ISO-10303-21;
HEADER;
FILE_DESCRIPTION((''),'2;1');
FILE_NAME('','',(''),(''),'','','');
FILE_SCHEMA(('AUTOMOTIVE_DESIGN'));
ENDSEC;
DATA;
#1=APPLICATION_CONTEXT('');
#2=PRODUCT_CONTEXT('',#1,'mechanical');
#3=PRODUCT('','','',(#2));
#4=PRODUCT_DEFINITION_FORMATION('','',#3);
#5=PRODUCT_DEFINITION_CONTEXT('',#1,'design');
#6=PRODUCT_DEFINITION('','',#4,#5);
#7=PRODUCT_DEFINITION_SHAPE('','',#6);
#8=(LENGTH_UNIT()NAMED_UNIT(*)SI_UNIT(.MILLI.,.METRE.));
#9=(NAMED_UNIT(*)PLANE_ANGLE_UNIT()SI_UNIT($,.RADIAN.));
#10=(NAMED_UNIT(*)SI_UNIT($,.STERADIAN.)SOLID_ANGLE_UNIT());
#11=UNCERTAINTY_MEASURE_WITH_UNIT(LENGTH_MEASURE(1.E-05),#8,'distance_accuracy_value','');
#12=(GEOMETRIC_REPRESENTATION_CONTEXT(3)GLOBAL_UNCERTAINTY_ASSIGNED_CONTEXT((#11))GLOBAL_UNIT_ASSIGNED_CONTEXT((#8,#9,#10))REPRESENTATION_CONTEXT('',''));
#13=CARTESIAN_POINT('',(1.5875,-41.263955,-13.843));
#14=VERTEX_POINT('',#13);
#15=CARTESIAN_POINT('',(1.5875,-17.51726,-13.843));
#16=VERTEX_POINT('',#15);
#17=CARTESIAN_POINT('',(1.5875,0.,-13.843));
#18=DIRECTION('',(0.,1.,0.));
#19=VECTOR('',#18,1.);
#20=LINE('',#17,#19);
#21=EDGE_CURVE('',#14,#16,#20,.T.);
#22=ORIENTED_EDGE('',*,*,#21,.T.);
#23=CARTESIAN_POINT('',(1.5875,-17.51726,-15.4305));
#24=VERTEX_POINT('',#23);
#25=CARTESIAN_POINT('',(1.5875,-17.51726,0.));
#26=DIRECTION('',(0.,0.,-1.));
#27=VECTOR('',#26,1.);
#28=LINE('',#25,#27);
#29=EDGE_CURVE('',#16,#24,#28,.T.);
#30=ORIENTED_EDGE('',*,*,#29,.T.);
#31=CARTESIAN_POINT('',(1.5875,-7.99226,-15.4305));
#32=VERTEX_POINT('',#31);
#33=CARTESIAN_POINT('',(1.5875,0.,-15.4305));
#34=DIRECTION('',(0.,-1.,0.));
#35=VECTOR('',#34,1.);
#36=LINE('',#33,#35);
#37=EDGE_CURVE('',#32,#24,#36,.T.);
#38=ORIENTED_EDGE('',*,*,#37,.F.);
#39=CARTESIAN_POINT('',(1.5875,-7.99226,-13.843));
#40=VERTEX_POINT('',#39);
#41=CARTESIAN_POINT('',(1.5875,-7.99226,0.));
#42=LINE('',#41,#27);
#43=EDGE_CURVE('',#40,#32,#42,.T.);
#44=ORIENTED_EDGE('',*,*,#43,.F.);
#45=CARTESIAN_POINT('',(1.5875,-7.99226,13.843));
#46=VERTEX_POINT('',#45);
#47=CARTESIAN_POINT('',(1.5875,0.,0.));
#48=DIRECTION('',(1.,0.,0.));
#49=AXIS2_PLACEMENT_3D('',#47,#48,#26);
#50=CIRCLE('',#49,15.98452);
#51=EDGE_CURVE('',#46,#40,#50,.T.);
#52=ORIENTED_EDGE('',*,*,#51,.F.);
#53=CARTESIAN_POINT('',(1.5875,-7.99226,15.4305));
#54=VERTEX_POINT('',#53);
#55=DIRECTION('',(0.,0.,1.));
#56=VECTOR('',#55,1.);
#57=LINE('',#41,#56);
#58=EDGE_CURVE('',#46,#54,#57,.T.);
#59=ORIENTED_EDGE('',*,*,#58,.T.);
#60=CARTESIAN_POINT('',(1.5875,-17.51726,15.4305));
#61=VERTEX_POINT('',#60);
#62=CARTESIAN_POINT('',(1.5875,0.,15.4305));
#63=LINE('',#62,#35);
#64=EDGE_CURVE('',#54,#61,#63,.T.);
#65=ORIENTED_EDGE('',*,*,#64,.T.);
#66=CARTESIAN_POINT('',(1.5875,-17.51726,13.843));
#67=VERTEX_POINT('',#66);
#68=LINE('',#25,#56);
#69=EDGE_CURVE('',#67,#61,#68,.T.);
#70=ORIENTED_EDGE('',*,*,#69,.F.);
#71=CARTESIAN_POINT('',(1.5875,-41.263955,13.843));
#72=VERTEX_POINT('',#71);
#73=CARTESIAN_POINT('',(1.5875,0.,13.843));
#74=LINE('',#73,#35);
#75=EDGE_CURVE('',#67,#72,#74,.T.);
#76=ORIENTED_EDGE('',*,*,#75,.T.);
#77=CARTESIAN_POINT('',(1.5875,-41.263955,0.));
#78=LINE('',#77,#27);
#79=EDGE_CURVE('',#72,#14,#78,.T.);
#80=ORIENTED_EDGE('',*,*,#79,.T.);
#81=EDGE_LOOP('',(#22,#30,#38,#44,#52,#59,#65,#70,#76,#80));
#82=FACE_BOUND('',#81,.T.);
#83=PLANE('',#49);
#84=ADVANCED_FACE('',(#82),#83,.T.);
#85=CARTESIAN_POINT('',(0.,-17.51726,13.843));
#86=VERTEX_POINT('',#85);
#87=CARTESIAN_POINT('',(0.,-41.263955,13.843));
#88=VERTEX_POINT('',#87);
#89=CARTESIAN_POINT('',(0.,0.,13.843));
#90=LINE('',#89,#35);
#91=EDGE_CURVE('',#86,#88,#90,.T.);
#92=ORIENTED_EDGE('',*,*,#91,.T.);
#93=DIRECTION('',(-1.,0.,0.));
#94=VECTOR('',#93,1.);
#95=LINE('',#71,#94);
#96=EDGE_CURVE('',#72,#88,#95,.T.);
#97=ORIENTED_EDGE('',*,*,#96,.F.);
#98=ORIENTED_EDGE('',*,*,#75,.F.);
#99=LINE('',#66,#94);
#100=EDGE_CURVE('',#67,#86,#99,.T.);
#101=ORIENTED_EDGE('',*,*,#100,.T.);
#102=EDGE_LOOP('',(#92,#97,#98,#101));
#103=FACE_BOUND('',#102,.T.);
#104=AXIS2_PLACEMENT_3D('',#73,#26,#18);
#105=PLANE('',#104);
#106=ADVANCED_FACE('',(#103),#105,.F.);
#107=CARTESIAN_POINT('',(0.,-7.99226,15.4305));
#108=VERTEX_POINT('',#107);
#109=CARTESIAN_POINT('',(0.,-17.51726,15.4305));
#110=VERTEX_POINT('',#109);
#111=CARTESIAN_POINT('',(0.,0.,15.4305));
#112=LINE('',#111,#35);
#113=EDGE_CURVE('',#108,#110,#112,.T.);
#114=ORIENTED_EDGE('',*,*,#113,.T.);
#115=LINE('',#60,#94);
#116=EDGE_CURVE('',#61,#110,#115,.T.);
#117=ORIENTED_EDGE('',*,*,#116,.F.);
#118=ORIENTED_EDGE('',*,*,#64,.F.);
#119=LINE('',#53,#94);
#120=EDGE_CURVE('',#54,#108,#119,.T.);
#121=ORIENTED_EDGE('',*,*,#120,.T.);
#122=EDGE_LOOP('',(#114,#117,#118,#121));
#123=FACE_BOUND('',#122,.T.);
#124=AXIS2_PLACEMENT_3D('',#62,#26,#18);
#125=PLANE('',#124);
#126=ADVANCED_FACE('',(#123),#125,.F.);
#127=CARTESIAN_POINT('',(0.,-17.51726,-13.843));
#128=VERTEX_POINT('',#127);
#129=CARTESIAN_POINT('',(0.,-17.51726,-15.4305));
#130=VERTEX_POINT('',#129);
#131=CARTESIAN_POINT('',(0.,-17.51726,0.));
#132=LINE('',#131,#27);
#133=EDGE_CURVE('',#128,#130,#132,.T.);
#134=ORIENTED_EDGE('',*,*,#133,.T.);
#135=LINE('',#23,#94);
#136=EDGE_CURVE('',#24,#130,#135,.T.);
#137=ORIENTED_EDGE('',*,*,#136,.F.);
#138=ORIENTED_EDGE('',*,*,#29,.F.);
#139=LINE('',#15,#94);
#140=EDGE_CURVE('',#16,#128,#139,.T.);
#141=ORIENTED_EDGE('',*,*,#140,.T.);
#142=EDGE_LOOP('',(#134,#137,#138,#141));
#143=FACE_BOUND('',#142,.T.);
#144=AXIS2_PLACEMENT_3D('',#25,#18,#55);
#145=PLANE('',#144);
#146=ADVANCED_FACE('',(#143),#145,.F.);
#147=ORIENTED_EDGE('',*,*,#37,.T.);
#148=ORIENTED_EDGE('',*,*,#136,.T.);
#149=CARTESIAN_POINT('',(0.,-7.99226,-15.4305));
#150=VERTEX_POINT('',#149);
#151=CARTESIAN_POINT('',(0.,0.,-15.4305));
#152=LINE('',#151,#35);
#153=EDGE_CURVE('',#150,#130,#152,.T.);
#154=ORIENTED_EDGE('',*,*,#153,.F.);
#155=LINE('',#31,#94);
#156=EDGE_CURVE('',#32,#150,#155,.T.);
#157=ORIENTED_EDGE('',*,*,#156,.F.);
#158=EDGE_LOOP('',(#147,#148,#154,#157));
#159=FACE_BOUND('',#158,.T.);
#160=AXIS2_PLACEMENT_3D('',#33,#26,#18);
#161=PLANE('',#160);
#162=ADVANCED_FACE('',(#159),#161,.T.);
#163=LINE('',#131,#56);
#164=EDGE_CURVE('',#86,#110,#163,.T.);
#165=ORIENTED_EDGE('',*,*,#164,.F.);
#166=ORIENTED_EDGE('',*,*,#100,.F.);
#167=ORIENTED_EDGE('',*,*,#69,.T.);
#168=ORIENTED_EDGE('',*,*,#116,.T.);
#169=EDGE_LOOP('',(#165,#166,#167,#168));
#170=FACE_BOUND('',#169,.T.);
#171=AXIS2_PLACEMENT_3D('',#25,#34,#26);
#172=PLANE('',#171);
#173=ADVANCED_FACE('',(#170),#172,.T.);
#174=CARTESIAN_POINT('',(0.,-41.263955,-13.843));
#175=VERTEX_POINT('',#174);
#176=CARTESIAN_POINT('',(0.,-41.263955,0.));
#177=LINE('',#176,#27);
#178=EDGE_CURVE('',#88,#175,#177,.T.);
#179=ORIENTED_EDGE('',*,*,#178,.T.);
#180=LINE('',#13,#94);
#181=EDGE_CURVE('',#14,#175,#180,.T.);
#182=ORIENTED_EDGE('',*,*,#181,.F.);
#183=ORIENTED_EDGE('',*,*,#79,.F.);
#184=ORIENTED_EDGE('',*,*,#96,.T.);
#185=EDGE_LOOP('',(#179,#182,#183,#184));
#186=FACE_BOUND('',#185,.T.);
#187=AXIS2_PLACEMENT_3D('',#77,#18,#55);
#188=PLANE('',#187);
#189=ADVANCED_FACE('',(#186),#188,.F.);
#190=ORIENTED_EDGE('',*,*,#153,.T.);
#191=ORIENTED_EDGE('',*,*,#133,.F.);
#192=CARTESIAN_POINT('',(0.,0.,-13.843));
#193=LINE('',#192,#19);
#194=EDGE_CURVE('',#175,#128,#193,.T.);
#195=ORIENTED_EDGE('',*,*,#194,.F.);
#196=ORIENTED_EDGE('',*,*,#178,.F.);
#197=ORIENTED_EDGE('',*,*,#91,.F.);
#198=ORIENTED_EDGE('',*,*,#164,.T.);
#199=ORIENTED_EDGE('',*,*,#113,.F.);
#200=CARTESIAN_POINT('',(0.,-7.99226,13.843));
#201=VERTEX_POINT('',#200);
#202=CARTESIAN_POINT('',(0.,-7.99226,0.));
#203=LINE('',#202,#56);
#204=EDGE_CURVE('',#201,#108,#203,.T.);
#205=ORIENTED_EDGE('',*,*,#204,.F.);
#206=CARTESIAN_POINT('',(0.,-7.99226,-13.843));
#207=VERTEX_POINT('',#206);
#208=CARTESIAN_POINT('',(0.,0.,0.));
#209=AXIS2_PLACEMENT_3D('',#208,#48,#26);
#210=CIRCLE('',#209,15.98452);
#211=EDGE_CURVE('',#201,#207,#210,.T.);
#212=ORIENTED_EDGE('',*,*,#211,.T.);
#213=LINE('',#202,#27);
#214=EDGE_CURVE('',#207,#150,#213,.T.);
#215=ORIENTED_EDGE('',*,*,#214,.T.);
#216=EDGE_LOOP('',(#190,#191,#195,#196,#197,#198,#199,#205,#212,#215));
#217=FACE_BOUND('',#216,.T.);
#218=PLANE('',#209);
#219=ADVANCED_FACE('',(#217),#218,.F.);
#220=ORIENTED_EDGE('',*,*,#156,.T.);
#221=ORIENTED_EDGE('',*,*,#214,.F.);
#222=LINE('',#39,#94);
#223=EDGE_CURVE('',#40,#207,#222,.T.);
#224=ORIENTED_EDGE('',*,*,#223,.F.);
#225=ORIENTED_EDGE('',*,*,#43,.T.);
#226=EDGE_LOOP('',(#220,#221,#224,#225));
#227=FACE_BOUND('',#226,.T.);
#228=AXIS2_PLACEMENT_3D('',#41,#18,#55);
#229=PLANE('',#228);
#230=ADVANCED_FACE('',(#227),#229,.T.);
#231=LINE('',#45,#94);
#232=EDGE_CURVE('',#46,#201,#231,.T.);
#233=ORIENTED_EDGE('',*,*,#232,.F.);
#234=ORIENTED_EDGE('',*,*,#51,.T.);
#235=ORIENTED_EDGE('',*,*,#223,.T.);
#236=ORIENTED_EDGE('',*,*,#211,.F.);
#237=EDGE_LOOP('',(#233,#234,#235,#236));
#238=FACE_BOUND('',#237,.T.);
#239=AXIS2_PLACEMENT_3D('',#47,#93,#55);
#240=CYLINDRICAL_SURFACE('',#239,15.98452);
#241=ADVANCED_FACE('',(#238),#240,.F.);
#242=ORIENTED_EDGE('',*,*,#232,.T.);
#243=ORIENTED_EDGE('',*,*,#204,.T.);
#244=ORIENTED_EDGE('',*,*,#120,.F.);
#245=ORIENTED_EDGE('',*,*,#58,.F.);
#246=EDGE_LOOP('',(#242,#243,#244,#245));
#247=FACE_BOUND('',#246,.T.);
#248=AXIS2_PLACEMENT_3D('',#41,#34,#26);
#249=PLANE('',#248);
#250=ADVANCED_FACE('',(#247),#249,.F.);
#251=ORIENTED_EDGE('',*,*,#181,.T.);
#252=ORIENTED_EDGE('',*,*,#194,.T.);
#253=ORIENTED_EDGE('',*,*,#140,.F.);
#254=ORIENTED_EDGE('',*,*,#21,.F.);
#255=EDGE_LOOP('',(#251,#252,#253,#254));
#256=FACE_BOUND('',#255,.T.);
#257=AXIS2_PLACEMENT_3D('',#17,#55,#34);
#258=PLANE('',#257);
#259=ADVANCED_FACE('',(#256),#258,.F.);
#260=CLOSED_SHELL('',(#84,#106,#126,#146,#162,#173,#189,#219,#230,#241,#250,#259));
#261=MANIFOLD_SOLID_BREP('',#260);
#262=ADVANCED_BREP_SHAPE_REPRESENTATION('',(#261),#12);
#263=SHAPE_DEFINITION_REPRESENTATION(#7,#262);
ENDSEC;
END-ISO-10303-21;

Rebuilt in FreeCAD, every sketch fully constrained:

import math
import FreeCAD as App
import Part
import Sketcher

V = App.Vector
Q = App.Units.Quantity

doc = App.newDocument("Part")
params = doc.addObject("Spreadsheet::Sheet", "Params")
for row, (alias, value) in enumerate([
    ("sketch1_height", "1.09 in"),
    ("sketch1_width", "0.375 in"),
    ("sketch1_height2", "0.0625 in"),
    ("pad1_length", "0.0625 in"),
], start=1):
    params.set(f"A{row}", alias)
    params.set(f"B{row}", "=" + value)
    params.setAlias(f"B{row}", alias)

body = doc.addObject("PartDesign::Body", "Body")

# Sketch on YZ plane
sketch1 = body.newObject("Sketcher::SketchObject", "Sketch")
sketch1.AttachmentSupport = (doc.getObject("YZ_Plane"), [""])
sketch1.MapMode = "FlatFace"
sketch1.addGeometry(Part.ArcOfCircle(Part.Circle(V(0, 0, 0), V(0, 0, 1), 16), math.radians(120), math.radians(240)), False)
sketch1.addGeometry(Part.LineSegment(V(-8, 13.8, 0), V(-8, 15.4, 0)), False)
sketch1.addGeometry(Part.LineSegment(V(-8, 15.4, 0), V(-17.5, 15.4, 0)), False)
sketch1.addGeometry(Part.LineSegment(V(-17.5, 15.4, 0), V(-17.5, 13.8, 0)), False)
sketch1.addGeometry(Part.LineSegment(V(-17.5, 13.8, 0), V(-41.3, 13.8, 0)), False)
sketch1.addGeometry(Part.LineSegment(V(-41.3, 13.8, 0), V(-41.3, -13.8, 0)), False)
sketch1.addGeometry(Part.LineSegment(V(-41.3, -13.8, 0), V(-17.5, -13.8, 0)), False)
sketch1.addGeometry(Part.LineSegment(V(-17.5, -13.8, 0), V(-17.5, -15.4, 0)), False)
sketch1.addGeometry(Part.LineSegment(V(-17.5, -15.4, 0), V(-8, -15.4, 0)), False)
sketch1.addGeometry(Part.LineSegment(V(-8, -15.4, 0), V(-8, -13.8, 0)), False)
sketch1.addConstraint(Sketcher.Constraint("Coincident", 0, 1, 1, 1))
sketch1.addConstraint(Sketcher.Constraint("Coincident", 1, 2, 2, 1))
sketch1.addConstraint(Sketcher.Constraint("Coincident", 2, 2, 3, 1))
sketch1.addConstraint(Sketcher.Constraint("Coincident", 3, 2, 4, 1))
sketch1.addConstraint(Sketcher.Constraint("Coincident", 4, 2, 5, 1))
sketch1.addConstraint(Sketcher.Constraint("Coincident", 5, 2, 6, 1))
sketch1.addConstraint(Sketcher.Constraint("Coincident", 6, 2, 7, 1))
sketch1.addConstraint(Sketcher.Constraint("Coincident", 7, 2, 8, 1))
sketch1.addConstraint(Sketcher.Constraint("Coincident", 8, 2, 9, 1))
sketch1.addConstraint(Sketcher.Constraint("Coincident", 9, 2, 0, 2))
sketch1.addConstraint(Sketcher.Constraint("Vertical", 1))
sketch1.addConstraint(Sketcher.Constraint("Horizontal", 2))
sketch1.addConstraint(Sketcher.Constraint("Vertical", 3))
sketch1.addConstraint(Sketcher.Constraint("Horizontal", 4))
sketch1.addConstraint(Sketcher.Constraint("Vertical", 5))
sketch1.addConstraint(Sketcher.Constraint("Horizontal", 6))
sketch1.addConstraint(Sketcher.Constraint("Vertical", 7))
sketch1.addConstraint(Sketcher.Constraint("Horizontal", 8))
sketch1.addConstraint(Sketcher.Constraint("Vertical", 9))
sketch1.addConstraint(Sketcher.Constraint("Coincident", 0, 3, -1, 1))
sketch1.addConstraint(Sketcher.Constraint("Symmetric", 3, 2, 6, 2, -1))
sketch1.addConstraint(Sketcher.Constraint("Symmetric", 1, 2, 8, 2, -1))
sketch1.addConstraint(Sketcher.Constraint("Horizontal", 0, 1, 3, 2))
sketch1.addConstraint(Sketcher.Constraint("DistanceY", 5, 2, 5, 1, Q("1.09 in")))
sketch1.addConstraint(Sketcher.Constraint("DistanceX", 2, 2, 2, 1, Q("0.375 in")))
sketch1.addConstraint(Sketcher.Constraint("DistanceY", 1, 1, 1, 2, Q("0.0625 in")))
sketch1.addConstraint(Sketcher.Constraint("Radius", 0, 15.98452))
sketch1.addConstraint(Sketcher.Constraint("DistanceX", 4, 2, 4, 1, 23.746695))
sketch1.setExpression("Constraints[23]", "Params.sketch1_height")
sketch1.setExpression("Constraints[24]", "Params.sketch1_width")
sketch1.setExpression("Constraints[25]", "Params.sketch1_height2")
pad1 = body.newObject("PartDesign::Pad", "Pad")
pad1.Profile = sketch1
pad1.setExpression("Length", "Params.pad1_length")

doc.recompute()
